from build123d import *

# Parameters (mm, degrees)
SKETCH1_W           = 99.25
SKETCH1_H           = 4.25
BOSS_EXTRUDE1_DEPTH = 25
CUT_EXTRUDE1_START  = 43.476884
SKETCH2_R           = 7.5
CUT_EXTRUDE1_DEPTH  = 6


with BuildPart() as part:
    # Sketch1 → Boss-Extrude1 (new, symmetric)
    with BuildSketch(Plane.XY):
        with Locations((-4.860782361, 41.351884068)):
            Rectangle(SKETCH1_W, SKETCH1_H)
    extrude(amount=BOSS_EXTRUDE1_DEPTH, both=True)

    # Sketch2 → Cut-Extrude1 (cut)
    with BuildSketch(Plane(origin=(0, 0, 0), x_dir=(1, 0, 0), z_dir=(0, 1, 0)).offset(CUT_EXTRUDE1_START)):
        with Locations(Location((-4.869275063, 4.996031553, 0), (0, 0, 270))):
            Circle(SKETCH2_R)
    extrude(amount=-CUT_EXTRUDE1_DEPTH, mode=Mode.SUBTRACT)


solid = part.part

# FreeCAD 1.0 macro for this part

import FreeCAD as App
import Part
import Sketcher
Q = App.Units.Quantity


def add_polygon(sketch, points):
    """Adds a closed chain of lines whose ends are joined by coincident constraints."""
    first, n = sketch.GeometryCount, len(points)
    for a, b in zip(points, points[1:] + points[:1]):
        sketch.addGeometry(Part.LineSegment(App.Vector(*a, 0), App.Vector(*b, 0)), False)
    for i in range(n):
        sketch.addConstraint(Sketcher.Constraint("Coincident", first + i, 2, first + (i + 1) % n, 1))

doc = App.newDocument("Part")
body = doc.addObject("PartDesign::Body", "Body")

# Sketch on XY plane
sketch1 = body.newObject("Sketcher::SketchObject", "Sketch")
sketch1.AttachmentSupport = (doc.getObject("XY_Plane"), [""])
sketch1.MapMode = "FlatFace"
add_polygon(sketch1, [(-54.5, 43.5), (-54.5, 39.2), (44.8, 39.2), (44.8, 43.5)])  # lines 0-3
sketch1.addConstraint([
    Sketcher.Constraint("Vertical", 0),
    Sketcher.Constraint("Horizontal", 1),
    Sketcher.Constraint("Vertical", 2),
    Sketcher.Constraint("Horizontal", 3),
    Sketcher.Constraint("DistanceX", 1, 1, 1, 2, Q("99.25 mm")),
    Sketcher.Constraint("DistanceY", 0, 2, 0, 1, Q("4.25 mm")),
    Sketcher.Constraint("DistanceX", 0, 2, -1, 1, Q("54.485782 mm")),
    Sketcher.Constraint("DistanceY", -1, 1, 0, 2, Q("39.226884 mm")),
])
pad1 = body.newObject("PartDesign::Pad", "Pad")
pad1.Profile = sketch1
pad1.Length = 50
pad1.Midplane = True

# Sketch on XZ plane
sketch2 = body.newObject("Sketcher::SketchObject", "Sketch001")
sketch2.AttachmentSupport = (doc.getObject("XZ_Plane"), [""])
sketch2.MapMode = "FlatFace"
sketch2.AttachmentOffset = App.Placement(App.Vector(0, 0, -43.476884), App.Rotation())
sketch2.addGeometry(Part.Circle(App.Vector(-5, -5, 0), App.Vector(0, 0, 1), 8), False)
sketch2.addConstraint([
    Sketcher.Constraint("Diameter", 0, Q("15 mm")),
    Sketcher.Constraint("DistanceY", 0, 3, -1, 1, Q("4.996032 mm")),
    Sketcher.Constraint("DistanceX", 0, 3, -1, 1, Q("4.869275 mm")),
])
pocket1 = body.newObject("PartDesign::Pocket", "Pocket")
pocket1.Profile = sketch2
pocket1.Length = 6
pocket1.Reversed = True

doc.recompute()
